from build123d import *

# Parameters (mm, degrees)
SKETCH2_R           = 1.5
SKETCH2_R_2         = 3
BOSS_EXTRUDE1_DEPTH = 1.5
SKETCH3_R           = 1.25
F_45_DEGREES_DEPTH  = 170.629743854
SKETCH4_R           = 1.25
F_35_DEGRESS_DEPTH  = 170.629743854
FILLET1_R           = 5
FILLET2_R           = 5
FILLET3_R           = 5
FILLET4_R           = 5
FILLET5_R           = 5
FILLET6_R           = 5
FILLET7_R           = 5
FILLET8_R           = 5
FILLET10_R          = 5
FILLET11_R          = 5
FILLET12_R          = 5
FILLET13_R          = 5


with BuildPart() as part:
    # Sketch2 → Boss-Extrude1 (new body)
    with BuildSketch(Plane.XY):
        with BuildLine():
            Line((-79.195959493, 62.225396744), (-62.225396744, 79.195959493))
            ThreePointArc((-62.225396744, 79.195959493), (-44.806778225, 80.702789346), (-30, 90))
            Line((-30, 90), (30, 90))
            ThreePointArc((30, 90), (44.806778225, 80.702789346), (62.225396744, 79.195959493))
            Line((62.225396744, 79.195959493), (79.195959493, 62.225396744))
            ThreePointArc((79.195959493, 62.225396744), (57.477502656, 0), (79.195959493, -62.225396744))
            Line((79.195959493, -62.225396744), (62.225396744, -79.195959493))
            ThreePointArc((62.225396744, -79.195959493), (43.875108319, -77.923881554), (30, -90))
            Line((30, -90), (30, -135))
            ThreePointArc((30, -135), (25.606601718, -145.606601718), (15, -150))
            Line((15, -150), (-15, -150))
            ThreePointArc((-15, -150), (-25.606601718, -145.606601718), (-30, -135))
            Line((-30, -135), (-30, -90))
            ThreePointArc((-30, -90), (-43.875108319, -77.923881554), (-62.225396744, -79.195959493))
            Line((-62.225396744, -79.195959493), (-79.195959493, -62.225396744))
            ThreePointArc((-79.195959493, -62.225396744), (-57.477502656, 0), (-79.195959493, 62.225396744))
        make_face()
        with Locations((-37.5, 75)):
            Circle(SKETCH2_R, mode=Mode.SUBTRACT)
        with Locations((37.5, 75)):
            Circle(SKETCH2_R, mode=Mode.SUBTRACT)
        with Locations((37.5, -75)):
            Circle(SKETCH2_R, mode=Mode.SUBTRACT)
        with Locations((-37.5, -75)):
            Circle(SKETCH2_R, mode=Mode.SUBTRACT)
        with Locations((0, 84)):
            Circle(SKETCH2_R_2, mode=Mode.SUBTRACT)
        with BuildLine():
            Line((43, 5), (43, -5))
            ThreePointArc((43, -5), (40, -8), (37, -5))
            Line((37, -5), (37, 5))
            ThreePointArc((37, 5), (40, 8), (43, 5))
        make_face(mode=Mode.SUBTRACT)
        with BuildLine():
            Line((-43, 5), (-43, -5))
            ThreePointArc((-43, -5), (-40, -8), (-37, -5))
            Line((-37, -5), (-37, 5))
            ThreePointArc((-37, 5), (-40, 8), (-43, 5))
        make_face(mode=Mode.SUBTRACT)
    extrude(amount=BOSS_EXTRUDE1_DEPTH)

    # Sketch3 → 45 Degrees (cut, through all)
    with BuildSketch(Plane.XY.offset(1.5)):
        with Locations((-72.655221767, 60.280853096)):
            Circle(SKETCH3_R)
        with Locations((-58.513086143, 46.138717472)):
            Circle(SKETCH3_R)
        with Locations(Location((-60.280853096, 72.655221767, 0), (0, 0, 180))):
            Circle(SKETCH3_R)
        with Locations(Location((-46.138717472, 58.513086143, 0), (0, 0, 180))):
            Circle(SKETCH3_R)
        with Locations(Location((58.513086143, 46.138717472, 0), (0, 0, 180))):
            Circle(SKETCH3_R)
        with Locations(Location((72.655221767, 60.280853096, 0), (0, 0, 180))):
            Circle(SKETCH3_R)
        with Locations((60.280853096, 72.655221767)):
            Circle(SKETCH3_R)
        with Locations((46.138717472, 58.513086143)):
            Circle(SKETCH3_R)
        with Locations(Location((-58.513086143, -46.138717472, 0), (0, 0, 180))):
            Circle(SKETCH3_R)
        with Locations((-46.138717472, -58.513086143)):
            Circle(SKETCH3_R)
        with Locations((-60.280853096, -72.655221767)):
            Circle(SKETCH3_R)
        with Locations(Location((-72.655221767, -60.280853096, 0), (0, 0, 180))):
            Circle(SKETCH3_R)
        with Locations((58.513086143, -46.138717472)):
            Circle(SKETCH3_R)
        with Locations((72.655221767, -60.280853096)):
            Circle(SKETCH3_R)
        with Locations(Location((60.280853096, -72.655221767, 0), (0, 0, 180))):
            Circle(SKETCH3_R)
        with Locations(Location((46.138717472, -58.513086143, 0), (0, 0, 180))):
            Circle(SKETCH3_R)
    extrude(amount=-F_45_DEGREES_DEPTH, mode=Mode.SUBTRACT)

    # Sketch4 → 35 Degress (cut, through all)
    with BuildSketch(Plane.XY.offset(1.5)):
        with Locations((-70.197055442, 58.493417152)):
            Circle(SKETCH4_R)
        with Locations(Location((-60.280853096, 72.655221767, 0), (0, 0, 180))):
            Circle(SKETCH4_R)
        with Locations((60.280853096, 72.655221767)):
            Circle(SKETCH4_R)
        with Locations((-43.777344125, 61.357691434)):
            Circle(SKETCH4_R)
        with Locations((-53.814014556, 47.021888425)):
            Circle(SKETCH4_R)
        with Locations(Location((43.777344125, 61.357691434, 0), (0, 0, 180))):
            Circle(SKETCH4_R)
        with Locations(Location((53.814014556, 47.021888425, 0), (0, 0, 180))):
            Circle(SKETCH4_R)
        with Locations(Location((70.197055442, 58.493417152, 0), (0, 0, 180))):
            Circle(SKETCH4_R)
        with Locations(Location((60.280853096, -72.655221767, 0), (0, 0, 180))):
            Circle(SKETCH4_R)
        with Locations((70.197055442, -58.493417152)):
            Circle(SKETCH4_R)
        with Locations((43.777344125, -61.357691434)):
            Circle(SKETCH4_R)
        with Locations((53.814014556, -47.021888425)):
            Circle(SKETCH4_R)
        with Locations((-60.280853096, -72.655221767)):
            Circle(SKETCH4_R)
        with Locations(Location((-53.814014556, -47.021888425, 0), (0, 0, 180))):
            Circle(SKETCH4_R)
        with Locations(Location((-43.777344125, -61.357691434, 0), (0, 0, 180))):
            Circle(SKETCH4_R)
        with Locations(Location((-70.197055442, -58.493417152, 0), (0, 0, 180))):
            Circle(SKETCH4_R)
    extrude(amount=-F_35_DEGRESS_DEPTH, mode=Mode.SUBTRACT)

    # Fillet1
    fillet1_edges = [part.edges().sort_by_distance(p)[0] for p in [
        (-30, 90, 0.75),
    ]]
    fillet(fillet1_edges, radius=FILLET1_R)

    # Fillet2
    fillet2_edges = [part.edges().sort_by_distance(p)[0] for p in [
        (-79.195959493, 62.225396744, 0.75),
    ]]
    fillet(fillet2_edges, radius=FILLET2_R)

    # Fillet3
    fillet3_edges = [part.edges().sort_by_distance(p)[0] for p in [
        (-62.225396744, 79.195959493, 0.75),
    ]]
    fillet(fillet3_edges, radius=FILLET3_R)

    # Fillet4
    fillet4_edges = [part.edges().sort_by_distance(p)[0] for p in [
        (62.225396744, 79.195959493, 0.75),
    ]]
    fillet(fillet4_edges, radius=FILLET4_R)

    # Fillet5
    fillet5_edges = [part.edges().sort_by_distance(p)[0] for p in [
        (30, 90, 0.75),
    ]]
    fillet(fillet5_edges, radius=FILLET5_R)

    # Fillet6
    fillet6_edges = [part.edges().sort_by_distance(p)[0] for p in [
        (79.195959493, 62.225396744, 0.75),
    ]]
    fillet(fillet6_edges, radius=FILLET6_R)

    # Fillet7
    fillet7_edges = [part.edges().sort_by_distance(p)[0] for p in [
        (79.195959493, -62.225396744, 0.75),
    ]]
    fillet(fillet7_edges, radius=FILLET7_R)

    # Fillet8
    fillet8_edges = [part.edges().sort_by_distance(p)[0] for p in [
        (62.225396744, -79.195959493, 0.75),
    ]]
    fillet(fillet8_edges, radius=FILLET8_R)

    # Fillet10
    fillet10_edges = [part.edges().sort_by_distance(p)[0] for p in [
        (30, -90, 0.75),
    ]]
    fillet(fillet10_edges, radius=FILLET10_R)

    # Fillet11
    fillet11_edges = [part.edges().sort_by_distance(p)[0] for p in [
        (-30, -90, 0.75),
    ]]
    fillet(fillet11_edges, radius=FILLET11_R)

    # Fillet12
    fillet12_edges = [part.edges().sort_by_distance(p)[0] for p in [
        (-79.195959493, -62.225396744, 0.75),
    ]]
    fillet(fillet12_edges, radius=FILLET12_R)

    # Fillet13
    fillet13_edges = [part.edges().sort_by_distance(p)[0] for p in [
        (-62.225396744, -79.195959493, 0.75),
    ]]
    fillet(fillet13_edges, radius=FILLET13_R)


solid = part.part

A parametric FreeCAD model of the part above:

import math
import FreeCAD as App
import Part
import Sketcher


def edges_at(feature, points):
    """Names of the edges that pass closest to the given points."""
    edges = feature.Shape.Edges
    near = lambda p: min(range(len(edges)), key=lambda i: edges[i].distToShape(Part.Vertex(*p))[0])
    return sorted({f"Edge{near(p) + 1}" for p in points})

doc = App.newDocument("Part")
body = doc.addObject("PartDesign::Body", "Body")

sketch1 = body.newObject("Sketcher::SketchObject", "Sketch")
sketch1.AttachmentSupport = (doc.getObject("XY_Plane"), [""])
sketch1.MapMode = "FlatFace"
sketch1.addGeometry([
    Part.LineSegment(App.Vector(-62.225397, 79.195959, 0), App.Vector(-79.195959, 62.225397, 0)),
    Part.ArcOfCircle(Part.Circle(App.Vector(-157.477503, 0, 0), App.Vector(0, 0, 1), 100), math.radians(-38.480919), math.radians(38.480919)),
    Part.LineSegment(App.Vector(-79.195959, -62.225397, 0), App.Vector(-62.225397, -79.195959, 0)),
    Part.ArcOfCircle(Part.Circle(App.Vector(-51.514719, -100.710678, 0), App.Vector(0, 0, 1), 24.033346), math.radians(26.465512), math.radians(116.465512)),
    Part.LineSegment(App.Vector(-30, -90, 0), App.Vector(-30, -135, 0)),
    Part.ArcOfCircle(Part.Circle(App.Vector(-15, -135, 0), App.Vector(0, 0, 1), 15), math.radians(180), math.radians(270)),
    Part.LineSegment(App.Vector(-15, -150, 0), App.Vector(15, -150, 0)),
    Part.ArcOfCircle(Part.Circle(App.Vector(15, -135, 0), App.Vector(0, 0, 1), 15), math.radians(-90), math.radians(0)),
    Part.LineSegment(App.Vector(30, -135, 0), App.Vector(30, -90, 0)),
    Part.ArcOfCircle(Part.Circle(App.Vector(51.514719, -100.710678, 0), App.Vector(0, 0, 1), 24.033346), math.radians(63.534488), math.radians(153.534488)),
    Part.LineSegment(App.Vector(62.225397, -79.195959, 0), App.Vector(79.195959, -62.225397, 0)),
    Part.ArcOfCircle(Part.Circle(App.Vector(157.477503, 0, 0), App.Vector(0, 0, 1), 100), math.radians(141.519081), math.radians(218.480919)),
    Part.LineSegment(App.Vector(79.195959, 62.225397, 0), App.Vector(62.225397, 79.195959, 0)),
    Part.ArcOfCircle(Part.Circle(App.Vector(56.632635, 115.975976, 0), App.Vector(0, 0, 1), 37.202804), math.radians(-135.715127), math.radians(-81.353849)),
    Part.LineSegment(App.Vector(30, 90, 0), App.Vector(-30, 90, 0)),
    Part.ArcOfCircle(Part.Circle(App.Vector(-56.632635, 115.975976, 0), App.Vector(0, 0, 1), 37.202804), math.radians(-98.646151), math.radians(-44.284873)),
    Part.Circle(App.Vector(37.5, -75, 0), App.Vector(0, 0, 1), 1.5),
    Part.LineSegment(App.Vector(43, 5, 0), App.Vector(43, -5, 0)),
    Part.ArcOfCircle(Part.Circle(App.Vector(40, -5, 0), App.Vector(0, 0, 1), 3), math.radians(180), math.radians(360)),
    Part.LineSegment(App.Vector(37, -5, 0), App.Vector(37, 5, 0)),
    Part.ArcOfCircle(Part.Circle(App.Vector(40, 5, 0), App.Vector(0, 0, 1), 3), math.radians(0), math.radians(180)),
    Part.Circle(App.Vector(-37.5, -75, 0), App.Vector(0, 0, 1), 1.5),
    Part.ArcOfCircle(Part.Circle(App.Vector(-40, 5, 0), App.Vector(0, 0, 1), 3), math.radians(0), math.radians(180)),
    Part.LineSegment(App.Vector(-37, 5, 0), App.Vector(-37, -5, 0)),
    Part.ArcOfCircle(Part.Circle(App.Vector(-40, -5, 0), App.Vector(0, 0, 1), 3), math.radians(180), math.radians(360)),
    Part.LineSegment(App.Vector(-43, -5, 0), App.Vector(-43, 5, 0)),
    Part.Circle(App.Vector(37.5, 75, 0), App.Vector(0, 0, 1), 1.5),
    Part.Circle(App.Vector(0, 84, 0), App.Vector(0, 0, 1), 3),
    Part.Circle(App.Vector(-37.5, 75, 0), App.Vector(0, 0, 1), 1.5),
], False)
sketch1.addConstraint([
    Sketcher.Constraint("Coincident", 0, 2, 1, 2),
    Sketcher.Constraint("Coincident", 1, 1, 2, 1),
    Sketcher.Constraint("Coincident", 2, 2, 3, 2),
    Sketcher.Constraint("Coincident", 3, 1, 4, 1),
    Sketcher.Constraint("Tangent", 4, 2, 5, 1),
    Sketcher.Constraint("Tangent", 5, 2, 6, 1),
    Sketcher.Constraint("Tangent", 6, 2, 7, 1),
    Sketcher.Constraint("Tangent", 7, 2, 8, 1),
    Sketcher.Constraint("Coincident", 8, 2, 9, 2),
    Sketcher.Constraint("Coincident", 9, 1, 10, 1),
    Sketcher.Constraint("Coincident", 10, 2, 11, 2),
    Sketcher.Constraint("Coincident", 11, 1, 12, 1),
    Sketcher.Constraint("Coincident", 12, 2, 13, 2),
    Sketcher.Constraint("Coincident", 13, 1, 14, 1),
    Sketcher.Constraint("Coincident", 14, 2, 15, 2),
    Sketcher.Constraint("Coincident", 15, 1, 0, 1),
    Sketcher.Constraint("Tangent", 17, 2, 18, 2),
    Sketcher.Constraint("Tangent", 18, 1, 19, 1),
    Sketcher.Constraint("Tangent", 19, 2, 20, 2),
    Sketcher.Constraint("Tangent", 20, 1, 17, 1),
    Sketcher.Constraint("Tangent", 22, 1, 23, 1),
    Sketcher.Constraint("Tangent", 23, 2, 24, 2),
    Sketcher.Constraint("Tangent", 24, 1, 25, 1),
    Sketcher.Constraint("Tangent", 25, 2, 22, 2),
    Sketcher.Constraint("Vertical", 4),
    Sketcher.Constraint("Horizontal", 6),
    Sketcher.Constraint("Vertical", 8),
    Sketcher.Constraint("Horizontal", 14),
    Sketcher.Constraint("Vertical", 17),
    Sketcher.Constraint("Vertical", 19),
    Sketcher.Constraint("Vertical", 23),
    Sketcher.Constraint("Vertical", 25),
    Sketcher.Constraint("Equal", 5, 7),
    Sketcher.Constraint("Equal", 3, 9),
    Sketcher.Constraint("Equal", 1, 11),
    Sketcher.Constraint("Equal", 13, 15),
    Sketcher.Constraint("Equal", 16, 21),
    Sketcher.Constraint("Equal", 20, 22),
    Sketcher.Constraint("Equal", 21, 26),
    Sketcher.Constraint("Equal", 24, 27),
    Sketcher.Constraint("Equal", 26, 28),
    Sketcher.Constraint("Symmetric", 1, 3, 11, 3, -1, 1),
    Sketcher.Constraint("Symmetric", 18, 3, 22, 3, -1, 1),
    Sketcher.Constraint("Symmetric", 21, 3, 26, 3, -1, 1),
    Sketcher.Constraint("Symmetric", 16, 3, 28, 3, -1, 1),
    Sketcher.Constraint("Symmetric", 2, 2, 12, 2, -1, 1),
    Sketcher.Constraint("Symmetric", 3, 1, 13, 1, -1, 1),
    Sketcher.Constraint("Symmetric", 8, 2, 14, 2, -1, 1),
    Sketcher.Constraint("Symmetric", 9, 1, 15, 1, -1, 1),
    Sketcher.Constraint("Symmetric", 3, 3, 9, 3, -2),
    Sketcher.Constraint("Symmetric", 16, 3, 21, 3, -2),
    Sketcher.Constraint("Symmetric", 1, 1, 10, 2, -2),
    Sketcher.Constraint("PointOnObject", 27, 3, -2),
    Sketcher.Constraint("Perpendicular", 0, 2),
    Sketcher.Constraint("Perpendicular", 2, 10),
    Sketcher.Constraint("Perpendicular", 10, 12),
    Sketcher.Constraint("Horizontal", 13, 3, 15, 3),
    Sketcher.Constraint("Horizontal", 20, 3, 22, 3),
    Sketcher.Constraint("Horizontal", 18, 3, 24, 3),
    Sketcher.Constraint("Diameter", 16, 3.0),
    Sketcher.Constraint("Diameter", 27, 6.0),
    Sketcher.Constraint("Radius", 1, 100.0),
    Sketcher.Constraint("Radius", 5, 15.0),
    Sketcher.Constraint("DistanceX", 6, 1, 6, 2, 30.0),
    Sketcher.Constraint("DistanceY", 4, 2, 4, 1, 45.0),
    Sketcher.Constraint("DistanceY", 17, 2, 17, 1, 10.0),
    Sketcher.Constraint("Distance", 0, 24.0),
    Sketcher.Constraint("DistanceY", 5, 3, -1, 1, 135.0),
    Sketcher.Constraint("DistanceY", 16, 3, -1, 1, 75.0),
    Sketcher.Constraint("DistanceX", -1, 1, 18, 3, 40.0),
    Sketcher.Constraint("DistanceY", -1, 1, 27, 3, 84.0),
    Sketcher.Constraint("DistanceX", 21, 3, 16, 3, 75.0),
    Sketcher.Constraint("Radius", 3, 24.033346),
    Sketcher.Constraint("Radius", 13, 37.202804),
    Sketcher.Constraint("DistanceX", 3, 3, -1, 1, 51.514719),
    Sketcher.Constraint("DistanceX", 0, 2, -1, 1, 79.195959),
])
pad1 = body.newObject("PartDesign::Pad", "Pad")
pad1.Profile = sketch1
pad1.Length = 1.5

sketch2 = body.newObject("Sketcher::SketchObject", "Sketch001")
sketch2.AttachmentSupport = (doc.getObject("XY_Plane"), [""])
sketch2.MapMode = "FlatFace"
sketch2.AttachmentOffset = App.Placement(App.Vector(0, 0, 1.5), App.Rotation())
sketch2.addGeometry([
    Part.Circle(App.Vector(-72.655222, 60.280853, 0), App.Vector(0, 0, 1), 1.25),
    Part.Circle(App.Vector(-58.513086, 46.138717, 0), App.Vector(0, 0, 1), 1.25),
    Part.Circle(App.Vector(-60.280853, 72.655222, 0), App.Vector(0, 0, 1), 1.25),
    Part.Circle(App.Vector(-46.138717, 58.513086, 0), App.Vector(0, 0, 1), 1.25),
    Part.Circle(App.Vector(58.513086, 46.138717, 0), App.Vector(0, 0, 1), 1.25),
    Part.Circle(App.Vector(72.655222, 60.280853, 0), App.Vector(0, 0, 1), 1.25),
    Part.Circle(App.Vector(60.280853, 72.655222, 0), App.Vector(0, 0, 1), 1.25),
    Part.Circle(App.Vector(46.138717, 58.513086, 0), App.Vector(0, 0, 1), 1.25),
    Part.Circle(App.Vector(-58.513086, -46.138717, 0), App.Vector(0, 0, 1), 1.25),
    Part.Circle(App.Vector(-46.138717, -58.513086, 0), App.Vector(0, 0, 1), 1.25),
    Part.Circle(App.Vector(-60.280853, -72.655222, 0), App.Vector(0, 0, 1), 1.25),
    Part.Circle(App.Vector(-72.655222, -60.280853, 0), App.Vector(0, 0, 1), 1.25),
    Part.Circle(App.Vector(58.513086, -46.138717, 0), App.Vector(0, 0, 1), 1.25),
    Part.Circle(App.Vector(72.655222, -60.280853, 0), App.Vector(0, 0, 1), 1.25),
    Part.Circle(App.Vector(60.280853, -72.655222, 0), App.Vector(0, 0, 1), 1.25),
    Part.Circle(App.Vector(46.138717, -58.513086, 0), App.Vector(0, 0, 1), 1.25),
], False)
sketch2.addConstraint([
    Sketcher.Constraint("Equal", 0, 1),
    Sketcher.Constraint("Equal", 1, 2),
    Sketcher.Constraint("Equal", 2, 3),
    Sketcher.Constraint("Equal", 3, 4),
    Sketcher.Constraint("Equal", 4, 5),
    Sketcher.Constraint("Equal", 5, 6),
    Sketcher.Constraint("Equal", 6, 7),
    Sketcher.Constraint("Equal", 7, 8),
    Sketcher.Constraint("Equal", 8, 9),
    Sketcher.Constraint("Equal", 9, 10),
    Sketcher.Constraint("Equal", 10, 11),
    Sketcher.Constraint("Equal", 11, 12),
    Sketcher.Constraint("Equal", 12, 13),
    Sketcher.Constraint("Equal", 13, 14),
    Sketcher.Constraint("Equal", 14, 15),
    Sketcher.Constraint("Symmetric", 4, 3, 8, 3, -1, 1),
    Sketcher.Constraint("Symmetric", 7, 3, 9, 3, -1, 1),
    Sketcher.Constraint("Symmetric", 6, 3, 10, 3, -1, 1),
    Sketcher.Constraint("Symmetric", 5, 3, 11, 3, -1, 1),
    Sketcher.Constraint("Symmetric", 1, 3, 12, 3, -1, 1),
    Sketcher.Constraint("Symmetric", 0, 3, 13, 3, -1, 1),
    Sketcher.Constraint("Symmetric", 2, 3, 14, 3, -1, 1),
    Sketcher.Constraint("Symmetric", 3, 3, 15, 3, -1, 1),
    Sketcher.Constraint("Symmetric", 1, 3, 4, 3, -2),
    Sketcher.Constraint("Symmetric", 0, 3, 5, 3, -2),
    Sketcher.Constraint("Symmetric", 2, 3, 6, 3, -2),
    Sketcher.Constraint("Symmetric", 3, 3, 7, 3, -2),
    Sketcher.Constraint("Diameter", 0, 2.5),
    Sketcher.Constraint("DistanceX", 0, 3, -1, 1, 72.655222),
    Sketcher.Constraint("DistanceY", -1, 1, 2, 3, 72.655222),
    Sketcher.Constraint("DistanceX", 0, 3, 2, 3, 12.374369),
    Sketcher.Constraint("DistanceY", 0, 3, 2, 3, 12.374369),
    Sketcher.Constraint("DistanceX", 1, 3, 3, 3, 12.374369),
    Sketcher.Constraint("DistanceY", 1, 3, 3, 3, 12.374369),
    Sketcher.Constraint("DistanceX", 2, 3, 4, 3, 118.793939),
    Sketcher.Constraint("DistanceY", 8, 3, 0, 3, 106.419571),
])
pocket1 = body.newObject("PartDesign::Pocket", "Pocket")
pocket1.Profile = sketch2
pocket1.Type = "ThroughAll"

sketch3 = body.newObject("Sketcher::SketchObject", "Sketch002")
sketch3.AttachmentSupport = (doc.getObject("XY_Plane"), [""])
sketch3.MapMode = "FlatFace"
sketch3.AttachmentOffset = App.Placement(App.Vector(0, 0, 1.5), App.Rotation())
sketch3.addGeometry([
    Part.Circle(App.Vector(-70.197055, 58.493417, 0), App.Vector(0, 0, 1), 1.25),
    Part.Circle(App.Vector(-60.280853, 72.655222, 0), App.Vector(0, 0, 1), 1.25),
    Part.Circle(App.Vector(60.280853, 72.655222, 0), App.Vector(0, 0, 1), 1.25),
    Part.Circle(App.Vector(-43.777344, 61.357691, 0), App.Vector(0, 0, 1), 1.25),
    Part.Circle(App.Vector(-53.814015, 47.021888, 0), App.Vector(0, 0, 1), 1.25),
    Part.Circle(App.Vector(43.777344, 61.357691, 0), App.Vector(0, 0, 1), 1.25),
    Part.Circle(App.Vector(53.814015, 47.021888, 0), App.Vector(0, 0, 1), 1.25),
    Part.Circle(App.Vector(70.197055, 58.493417, 0), App.Vector(0, 0, 1), 1.25),
    Part.Circle(App.Vector(60.280853, -72.655222, 0), App.Vector(0, 0, 1), 1.25),
    Part.Circle(App.Vector(70.197055, -58.493417, 0), App.Vector(0, 0, 1), 1.25),
    Part.Circle(App.Vector(43.777344, -61.357691, 0), App.Vector(0, 0, 1), 1.25),
    Part.Circle(App.Vector(53.814015, -47.021888, 0), App.Vector(0, 0, 1), 1.25),
    Part.Circle(App.Vector(-60.280853, -72.655222, 0), App.Vector(0, 0, 1), 1.25),
    Part.Circle(App.Vector(-53.814015, -47.021888, 0), App.Vector(0, 0, 1), 1.25),
    Part.Circle(App.Vector(-43.777344, -61.357691, 0), App.Vector(0, 0, 1), 1.25),
    Part.Circle(App.Vector(-70.197055, -58.493417, 0), App.Vector(0, 0, 1), 1.25),
], False)
sketch3.addConstraint([
    Sketcher.Constraint("Equal", 0, 1),
    Sketcher.Constraint("Equal", 1, 2),
    Sketcher.Constraint("Equal", 2, 3),
    Sketcher.Constraint("Equal", 3, 4),
    Sketcher.Constraint("Equal", 4, 5),
    Sketcher.Constraint("Equal", 5, 6),
    Sketcher.Constraint("Equal", 6, 7),
    Sketcher.Constraint("Equal", 7, 8),
    Sketcher.Constraint("Equal", 8, 9),
    Sketcher.Constraint("Equal", 9, 10),
    Sketcher.Constraint("Equal", 10, 11),
    Sketcher.Constraint("Equal", 11, 12),
    Sketcher.Constraint("Equal", 12, 13),
    Sketcher.Constraint("Equal", 13, 14),
    Sketcher.Constraint("Equal", 14, 15),
    Sketcher.Constraint("Symmetric", 1, 3, 8, 3, -1, 1),
    Sketcher.Constraint("Symmetric", 0, 3, 9, 3, -1, 1),
    Sketcher.Constraint("Symmetric", 3, 3, 10, 3, -1, 1),
    Sketcher.Constraint("Symmetric", 4, 3, 11, 3, -1, 1),
    Sketcher.Constraint("Symmetric", 2, 3, 12, 3, -1, 1),
    Sketcher.Constraint("Symmetric", 6, 3, 13, 3, -1, 1),
    Sketcher.Constraint("Symmetric", 5, 3, 14, 3, -1, 1),
    Sketcher.Constraint("Symmetric", 7, 3, 15, 3, -1, 1),
    Sketcher.Constraint("Symmetric", 1, 3, 2, 3, -2),
    Sketcher.Constraint("Symmetric", 3, 3, 5, 3, -2),
    Sketcher.Constraint("Symmetric", 4, 3, 6, 3, -2),
    Sketcher.Constraint("Symmetric", 0, 3, 7, 3, -2),
    Sketcher.Constraint("Diameter", 0, 2.5),
    Sketcher.Constraint("DistanceX", 0, 3, 5, 3, 113.9744),
    Sketcher.Constraint("DistanceY", -1, 1, 1, 3, 72.655222),
    Sketcher.Constraint("DistanceY", -1, 1, 3, 3, 61.357691),
    Sketcher.Constraint("DistanceY", -1, 1, 4, 3, 47.021888),
    Sketcher.Constraint("DistanceX", 0, 3, 2, 3, 130.477909),
    Sketcher.Constraint("DistanceX", 0, 3, 3, 3, 26.419711),
    Sketcher.Constraint("DistanceX", 4, 3, 3, 3, 10.03667),
    Sketcher.Constraint("DistanceY", 4, 3, 0, 3, 11.471529),
])
pocket2 = body.newObject("PartDesign::Pocket", "Pocket001")
pocket2.Profile = sketch3
pocket2.Type = "ThroughAll"
doc.recompute()

fillet = body.newObject("PartDesign::Fillet", "Fillet")
fillet.Base = (pocket2, edges_at(pocket2, [(-30, 90, 0.75)]))
fillet.Radius = 5
doc.recompute()

fillet2 = body.newObject("PartDesign::Fillet", "Fillet001")
fillet2.Base = (fillet, edges_at(fillet, [(-79.196, 62.225, 0.75)]))
fillet2.Radius = 5
doc.recompute()

fillet3 = body.newObject("PartDesign::Fillet", "Fillet002")
fillet3.Base = (fillet2, edges_at(fillet2, [(-62.225, 79.196, 0.75)]))
fillet3.Radius = 5
doc.recompute()

fillet4 = body.newObject("PartDesign::Fillet", "Fillet003")
fillet4.Base = (fillet3, edges_at(fillet3, [(62.225, 79.196, 0.75)]))
fillet4.Radius = 5
doc.recompute()

fillet5 = body.newObject("PartDesign::Fillet", "Fillet004")
fillet5.Base = (fillet4, edges_at(fillet4, [(30, 90, 0.75)]))
fillet5.Radius = 5
doc.recompute()

fillet6 = body.newObject("PartDesign::Fillet", "Fillet005")
fillet6.Base = (fillet5, edges_at(fillet5, [(79.196, 62.225, 0.75)]))
fillet6.Radius = 5
doc.recompute()

fillet7 = body.newObject("PartDesign::Fillet", "Fillet006")
fillet7.Base = (fillet6, edges_at(fillet6, [(79.196, -62.225, 0.75)]))
fillet7.Radius = 5
doc.recompute()

fillet8 = body.newObject("PartDesign::Fillet", "Fillet007")
fillet8.Base = (fillet7, edges_at(fillet7, [(62.225, -79.196, 0.75)]))
fillet8.Radius = 5
doc.recompute()

fillet9 = body.newObject("PartDesign::Fillet", "Fillet008")
fillet9.Base = (fillet8, edges_at(fillet8, [(30, -90, 0.75)]))
fillet9.Radius = 5
doc.recompute()

fillet10 = body.newObject("PartDesign::Fillet", "Fillet009")
fillet10.Base = (fillet9, edges_at(fillet9, [(-30, -90, 0.75)]))
fillet10.Radius = 5
doc.recompute()

fillet11 = body.newObject("PartDesign::Fillet", "Fillet010")
fillet11.Base = (fillet10, edges_at(fillet10, [(-79.196, -62.225, 0.75)]))
fillet11.Radius = 5
doc.recompute()

fillet12 = body.newObject("PartDesign::Fillet", "Fillet011")
fillet12.Base = (fillet11, edges_at(fillet11, [(-62.225, -79.196, 0.75)]))
fillet12.Radius = 5

doc.recompute()
